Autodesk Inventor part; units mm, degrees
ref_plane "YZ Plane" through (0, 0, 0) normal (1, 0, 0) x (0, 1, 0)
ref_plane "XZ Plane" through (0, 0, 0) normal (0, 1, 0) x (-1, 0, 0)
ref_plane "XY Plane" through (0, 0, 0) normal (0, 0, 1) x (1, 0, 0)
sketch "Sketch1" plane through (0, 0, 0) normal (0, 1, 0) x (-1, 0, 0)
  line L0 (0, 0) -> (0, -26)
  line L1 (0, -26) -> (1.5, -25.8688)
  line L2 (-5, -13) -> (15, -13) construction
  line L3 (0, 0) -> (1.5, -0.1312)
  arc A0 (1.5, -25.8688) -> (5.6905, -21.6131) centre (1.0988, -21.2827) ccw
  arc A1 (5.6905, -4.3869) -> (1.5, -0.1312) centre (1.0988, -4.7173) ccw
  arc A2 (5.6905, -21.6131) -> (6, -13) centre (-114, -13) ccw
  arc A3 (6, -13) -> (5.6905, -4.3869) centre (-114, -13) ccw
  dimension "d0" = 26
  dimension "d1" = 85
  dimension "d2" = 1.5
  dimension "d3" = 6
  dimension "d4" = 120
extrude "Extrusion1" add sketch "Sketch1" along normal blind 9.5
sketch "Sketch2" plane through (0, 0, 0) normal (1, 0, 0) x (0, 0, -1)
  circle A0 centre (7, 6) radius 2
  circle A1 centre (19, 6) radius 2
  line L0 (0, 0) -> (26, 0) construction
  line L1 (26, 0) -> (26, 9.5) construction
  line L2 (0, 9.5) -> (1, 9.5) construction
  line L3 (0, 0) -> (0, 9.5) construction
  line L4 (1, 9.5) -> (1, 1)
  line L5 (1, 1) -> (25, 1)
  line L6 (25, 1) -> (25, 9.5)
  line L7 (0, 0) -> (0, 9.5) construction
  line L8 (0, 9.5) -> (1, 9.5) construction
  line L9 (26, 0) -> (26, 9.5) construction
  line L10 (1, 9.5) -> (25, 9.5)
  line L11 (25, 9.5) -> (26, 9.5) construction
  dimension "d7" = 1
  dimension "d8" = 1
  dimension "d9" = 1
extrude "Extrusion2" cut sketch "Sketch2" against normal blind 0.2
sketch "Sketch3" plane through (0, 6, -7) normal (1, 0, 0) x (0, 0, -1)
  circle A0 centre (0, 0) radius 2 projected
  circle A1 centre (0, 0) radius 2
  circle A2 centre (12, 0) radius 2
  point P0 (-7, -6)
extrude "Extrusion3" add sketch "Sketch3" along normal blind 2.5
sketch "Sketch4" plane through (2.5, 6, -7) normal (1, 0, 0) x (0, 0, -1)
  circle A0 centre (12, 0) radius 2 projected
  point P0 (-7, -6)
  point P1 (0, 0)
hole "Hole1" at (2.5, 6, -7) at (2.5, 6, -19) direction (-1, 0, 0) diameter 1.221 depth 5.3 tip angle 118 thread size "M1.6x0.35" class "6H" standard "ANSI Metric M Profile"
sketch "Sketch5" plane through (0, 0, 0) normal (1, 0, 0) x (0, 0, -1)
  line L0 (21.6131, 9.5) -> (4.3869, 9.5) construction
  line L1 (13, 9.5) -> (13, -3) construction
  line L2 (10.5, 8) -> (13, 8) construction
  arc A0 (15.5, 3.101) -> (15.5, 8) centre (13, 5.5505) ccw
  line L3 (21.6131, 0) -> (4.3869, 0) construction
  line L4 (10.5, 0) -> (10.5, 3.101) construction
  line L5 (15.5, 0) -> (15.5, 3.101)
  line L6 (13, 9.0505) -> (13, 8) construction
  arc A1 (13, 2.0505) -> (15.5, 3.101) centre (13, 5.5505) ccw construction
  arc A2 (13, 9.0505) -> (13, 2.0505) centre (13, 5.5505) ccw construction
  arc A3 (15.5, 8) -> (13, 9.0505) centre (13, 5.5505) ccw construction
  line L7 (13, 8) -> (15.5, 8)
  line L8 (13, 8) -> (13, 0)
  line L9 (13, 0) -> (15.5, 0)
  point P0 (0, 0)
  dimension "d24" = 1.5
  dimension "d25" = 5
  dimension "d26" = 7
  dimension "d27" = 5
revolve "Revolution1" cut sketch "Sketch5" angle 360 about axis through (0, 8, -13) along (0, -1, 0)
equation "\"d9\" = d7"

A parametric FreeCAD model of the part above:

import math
import FreeCAD as App
import Part
import Sketcher

V = App.Vector
Q = App.Units.Quantity


def add_polygon(sketch, points):
    """Adds a closed chain of lines whose ends are joined by coincident constraints."""
    first, n = sketch.GeometryCount, len(points)
    for a, b in zip(points, points[1:] + points[:1]):
        sketch.addGeometry(Part.LineSegment(App.Vector(*a, 0), App.Vector(*b, 0)), False)
    for i in range(n):
        sketch.addConstraint(Sketcher.Constraint("Coincident", first + i, 2, first + (i + 1) % n, 1))

doc = App.newDocument("Part")
body = doc.addObject("PartDesign::Body", "Body")

sketch1 = doc.addObject("Sketcher::SketchObject", "Sketch")
body.addObject(sketch1)
sketch1.AttachmentSupport = (doc.XZ_Plane, [""])
sketch1.MapMode = "FlatFace"
sketch1.addGeometry([
    Part.LineSegment(V(-1.5, -0.1312, 0), V(0, 0, 0)),
    Part.LineSegment(V(0, 0, 0), V(0, -26, 0)),
    Part.LineSegment(V(0, -26, 0), V(-1.5, -25.8688, 0)),
    Part.ArcOfCircle(Part.Circle(V(-1.0988, -21.2827, 0), V(0, 0, 1), 4.603615), math.radians(-175.884323), math.radians(-94.999606)),
    Part.ArcOfCircle(Part.Circle(V(113.995865, -13.000223, 0), V(0, 0, 1), 119.995865), math.radians(179.999894), math.radians(184.116027)),
    Part.ArcOfCircle(Part.Circle(V(114.00414, -13.000074, 0), V(0, 0, 1), 120.00414), math.radians(175.884115), math.radians(179.999964)),
    Part.ArcOfCircle(Part.Circle(V(-1.0988, -4.7173, 0), V(0, 0, 1), 4.603572), math.radians(94.999606), math.radians(175.884323)),
], False)
sketch1.addConstraint([
    Sketcher.Constraint("Coincident", 0, 2, 1, 1),
    Sketcher.Constraint("Coincident", 1, 2, 2, 1),
    Sketcher.Constraint("Coincident", 2, 2, 3, 2),
    Sketcher.Constraint("Coincident", 3, 1, 4, 2),
    Sketcher.Constraint("Coincident", 4, 1, 5, 2),
    Sketcher.Constraint("Coincident", 5, 1, 6, 2),
    Sketcher.Constraint("Coincident", 6, 1, 0, 1),
    Sketcher.Constraint("Vertical", 1),
    Sketcher.Constraint("Coincident", 0, 2, -1, 1),
    Sketcher.Constraint("DistanceY", 1, 2, 1, 1, Q("26 mm")),
    Sketcher.Constraint("DistanceX", 4, 1, -1, 1, Q("6 mm")),
    Sketcher.Constraint("DistanceX", 2, 2, -1, 1, Q("1.5 mm")),
    Sketcher.Constraint("DistanceX", 6, 1, -1, 1, Q("1.5 mm")),
    Sketcher.Constraint("DistanceY", 5, 3, -1, 1, Q("13 mm")),
    Sketcher.Constraint("DistanceY", 4, 1, -1, 1, Q("13 mm")),
    Sketcher.Constraint("Radius", 3, Q("4.6036 mm")),
    Sketcher.Constraint("Radius", 4, Q("119.9959 mm")),
    Sketcher.Constraint("Radius", 5, Q("120.0041 mm")),
    Sketcher.Constraint("Radius", 6, Q("4.6036 mm")),
    Sketcher.Constraint("DistanceY", 3, 1, -1, 1, Q("21.613 mm")),
    Sketcher.Constraint("DistanceY", 5, 1, -1, 1, Q("4.387 mm")),
    Sketcher.Constraint("DistanceX", 3, 3, 5, 3, Q("115.103 mm")),
    Sketcher.Constraint("DistanceY", 4, 3, 6, 3, Q("8.283 mm")),
    Sketcher.Constraint("DistanceX", 6, 3, 5, 3, Q("115.103 mm")),
])
pad1 = doc.addObject("PartDesign::Pad", "Pad")
body.addObject(pad1)
pad1.Profile = sketch1
pad1.Length = 9.5
pad1.Reversed = True

sketch2 = doc.addObject("Sketcher::SketchObject", "Sketch001")
body.addObject(sketch2)
sketch2.AttachmentSupport = (doc.YZ_Plane, [""])
sketch2.MapMode = "FlatFace"
add_polygon(sketch2, [(9.5, -25), (9.5, -1), (1, -1), (1, -25)])
sketch2.addGeometry(Part.Circle(V(6, -7, 0), V(0, 0, 1), 2), False)
sketch2.addGeometry(Part.Circle(V(6, -19, 0), V(0, 0, 1), 2), False)
sketch2.addConstraint([
    Sketcher.Constraint("Vertical", 0),
    Sketcher.Constraint("Horizontal", 1),
    Sketcher.Constraint("Vertical", 2),
    Sketcher.Constraint("Horizontal", 3),
    Sketcher.Constraint("Equal", 4, 5),
    Sketcher.Constraint("Vertical", 4, 3, 5, 3),
    Sketcher.Constraint("Diameter", 4, Q("4 mm")),
    Sketcher.Constraint("DistanceY", 0, 2, -1, 1, Q("1 mm")),
    Sketcher.Constraint("DistanceX", -1, 1, 1, 2, Q("1 mm")),
    Sketcher.Constraint("DistanceY", 0, 1, 0, 2, Q("24 mm")),
    Sketcher.Constraint("DistanceX", 1, 2, 1, 1, Q("8.5 mm")),
    Sketcher.Constraint("DistanceX", -1, 1, 4, 3, Q("6 mm")),
    Sketcher.Constraint("DistanceY", 4, 3, -1, 1, Q("7 mm")),
    Sketcher.Constraint("DistanceY", 5, 3, -1, 1, Q("19 mm")),
])
pocket1 = doc.addObject("PartDesign::Pocket", "Pocket")
body.addObject(pocket1)
pocket1.Profile = sketch2
pocket1.Length = 0.2

sketch3 = doc.addObject("Sketcher::SketchObject", "Sketch002")
body.addObject(sketch3)
sketch3.AttachmentSupport = (doc.YZ_Plane, [""])
sketch3.MapMode = "FlatFace"
sketch3.addGeometry([
    Part.Circle(V(6, -7, 0), V(0, 0, 1), 2),
    Part.Circle(V(6, -19, 0), V(0, 0, 1), 2),
], False)
sketch3.addConstraint([
    Sketcher.Constraint("Equal", 0, 1),
    Sketcher.Constraint("Vertical", 0, 3, 1, 3),
    Sketcher.Constraint("Diameter", 0, Q("4 mm")),
    Sketcher.Constraint("DistanceX", -1, 1, 0, 3, Q("6 mm")),
    Sketcher.Constraint("DistanceY", 0, 3, -1, 1, Q("7 mm")),
    Sketcher.Constraint("DistanceY", 1, 3, -1, 1, Q("19 mm")),
])
pad2 = doc.addObject("PartDesign::Pad", "Pad001")
body.addObject(pad2)
pad2.Profile = sketch3
pad2.Length = 2.5

sketch4 = doc.addObject("Sketcher::SketchObject", "Sketch003")
body.addObject(sketch4)
sketch4.AttachmentSupport = (doc.YZ_Plane, [""])
sketch4.MapMode = "FlatFace"
sketch4.AttachmentOffset = App.Placement(V(0, 0, 2.5), App.Rotation())
sketch4.addGeometry([
    Part.Circle(V(6, -7, 0), V(0, 0, 1), 0.6105),
    Part.Circle(V(6, -19, 0), V(0, 0, 1), 0.6105),
], False)
sketch4.addConstraint([
    Sketcher.Constraint("Equal", 0, 1),
    Sketcher.Constraint("Vertical", 0, 3, 1, 3),
    Sketcher.Constraint("Diameter", 0, Q("1.221 mm")),
    Sketcher.Constraint("DistanceX", -1, 1, 0, 3, Q("6 mm")),
    Sketcher.Constraint("DistanceY", 0, 3, -1, 1, Q("7 mm")),
    Sketcher.Constraint("DistanceY", 1, 3, -1, 1, Q("19 mm")),
])
doc.recompute()
hole = doc.addObject("PartDesign::Hole", "Hole")
body.addObject(hole)
hole.Profile = sketch4
hole.ThreadType = "None"
hole.Diameter = 1.221
hole.DepthType = "Dimension"
hole.Depth = 5.3
hole.DrillPoint = "Angled"
hole.DrillPointAngle = 118

sketch5 = doc.addObject("Sketcher::SketchObject", "Sketch004")
body.addObject(sketch5)
sketch5.AttachmentSupport = (doc.YZ_Plane, [""])
sketch5.MapMode = "FlatFace"
sketch5.addGeometry([
    Part.LineSegment(V(0, -15.5, 0), V(3.101, -15.5, 0)),
    Part.ArcOfCircle(Part.Circle(V(5.5505, -13, 0), V(0, 0, 1), 3.500007), math.radians(-134.415429), math.radians(-45.584571)),
    Part.LineSegment(V(8, -15.5, 0), V(8, -13, 0)),
    Part.LineSegment(V(8, -13, 0), V(0, -13, 0)),
    Part.LineSegment(V(0, -13, 0), V(0, -15.5, 0)),
], False)
sketch5.addGeometry(Part.LineSegment(V(8, -13, 0), V(0, -13, 0)), True)
sketch5.addConstraint([
    Sketcher.Constraint("Coincident", 0, 2, 1, 1),
    Sketcher.Constraint("Coincident", 1, 2, 2, 1),
    Sketcher.Constraint("Coincident", 2, 2, 3, 1),
    Sketcher.Constraint("Coincident", 3, 2, 4, 1),
    Sketcher.Constraint("Coincident", 4, 2, 0, 1),
    Sketcher.Constraint("Horizontal", 0),
    Sketcher.Constraint("Vertical", 2),
    Sketcher.Constraint("Horizontal", 3),
    Sketcher.Constraint("Vertical", 4),
    Sketcher.Constraint("Horizontal", 5),
    Sketcher.Constraint("Coincident", 5, 1, 2, 2),
    Sketcher.Constraint("PointOnObject", 3, 2, -2),
    Sketcher.Constraint("PointOnObject", 5, 2, -2),
    Sketcher.Constraint("Horizontal", 0, 2, 1, 2),
    Sketcher.Constraint("Horizontal", 1, 3, 2, 2),
    Sketcher.Constraint("Radius", 1, Q("3.5 mm")),
    Sketcher.Constraint("DistanceX", 3, 2, 3, 1, Q("8 mm")),
    Sketcher.Constraint("DistanceY", 2, 1, 2, 2, Q("2.5 mm")),
    Sketcher.Constraint("DistanceY", 1, 3, -1, 1, Q("13 mm")),
])
groove = doc.addObject("PartDesign::Groove", "Groove")
body.addObject(groove)
groove.Profile = sketch5
groove.ReferenceAxis = (sketch5, ["Axis0"])
groove.Angle = 360

doc.recompute()
